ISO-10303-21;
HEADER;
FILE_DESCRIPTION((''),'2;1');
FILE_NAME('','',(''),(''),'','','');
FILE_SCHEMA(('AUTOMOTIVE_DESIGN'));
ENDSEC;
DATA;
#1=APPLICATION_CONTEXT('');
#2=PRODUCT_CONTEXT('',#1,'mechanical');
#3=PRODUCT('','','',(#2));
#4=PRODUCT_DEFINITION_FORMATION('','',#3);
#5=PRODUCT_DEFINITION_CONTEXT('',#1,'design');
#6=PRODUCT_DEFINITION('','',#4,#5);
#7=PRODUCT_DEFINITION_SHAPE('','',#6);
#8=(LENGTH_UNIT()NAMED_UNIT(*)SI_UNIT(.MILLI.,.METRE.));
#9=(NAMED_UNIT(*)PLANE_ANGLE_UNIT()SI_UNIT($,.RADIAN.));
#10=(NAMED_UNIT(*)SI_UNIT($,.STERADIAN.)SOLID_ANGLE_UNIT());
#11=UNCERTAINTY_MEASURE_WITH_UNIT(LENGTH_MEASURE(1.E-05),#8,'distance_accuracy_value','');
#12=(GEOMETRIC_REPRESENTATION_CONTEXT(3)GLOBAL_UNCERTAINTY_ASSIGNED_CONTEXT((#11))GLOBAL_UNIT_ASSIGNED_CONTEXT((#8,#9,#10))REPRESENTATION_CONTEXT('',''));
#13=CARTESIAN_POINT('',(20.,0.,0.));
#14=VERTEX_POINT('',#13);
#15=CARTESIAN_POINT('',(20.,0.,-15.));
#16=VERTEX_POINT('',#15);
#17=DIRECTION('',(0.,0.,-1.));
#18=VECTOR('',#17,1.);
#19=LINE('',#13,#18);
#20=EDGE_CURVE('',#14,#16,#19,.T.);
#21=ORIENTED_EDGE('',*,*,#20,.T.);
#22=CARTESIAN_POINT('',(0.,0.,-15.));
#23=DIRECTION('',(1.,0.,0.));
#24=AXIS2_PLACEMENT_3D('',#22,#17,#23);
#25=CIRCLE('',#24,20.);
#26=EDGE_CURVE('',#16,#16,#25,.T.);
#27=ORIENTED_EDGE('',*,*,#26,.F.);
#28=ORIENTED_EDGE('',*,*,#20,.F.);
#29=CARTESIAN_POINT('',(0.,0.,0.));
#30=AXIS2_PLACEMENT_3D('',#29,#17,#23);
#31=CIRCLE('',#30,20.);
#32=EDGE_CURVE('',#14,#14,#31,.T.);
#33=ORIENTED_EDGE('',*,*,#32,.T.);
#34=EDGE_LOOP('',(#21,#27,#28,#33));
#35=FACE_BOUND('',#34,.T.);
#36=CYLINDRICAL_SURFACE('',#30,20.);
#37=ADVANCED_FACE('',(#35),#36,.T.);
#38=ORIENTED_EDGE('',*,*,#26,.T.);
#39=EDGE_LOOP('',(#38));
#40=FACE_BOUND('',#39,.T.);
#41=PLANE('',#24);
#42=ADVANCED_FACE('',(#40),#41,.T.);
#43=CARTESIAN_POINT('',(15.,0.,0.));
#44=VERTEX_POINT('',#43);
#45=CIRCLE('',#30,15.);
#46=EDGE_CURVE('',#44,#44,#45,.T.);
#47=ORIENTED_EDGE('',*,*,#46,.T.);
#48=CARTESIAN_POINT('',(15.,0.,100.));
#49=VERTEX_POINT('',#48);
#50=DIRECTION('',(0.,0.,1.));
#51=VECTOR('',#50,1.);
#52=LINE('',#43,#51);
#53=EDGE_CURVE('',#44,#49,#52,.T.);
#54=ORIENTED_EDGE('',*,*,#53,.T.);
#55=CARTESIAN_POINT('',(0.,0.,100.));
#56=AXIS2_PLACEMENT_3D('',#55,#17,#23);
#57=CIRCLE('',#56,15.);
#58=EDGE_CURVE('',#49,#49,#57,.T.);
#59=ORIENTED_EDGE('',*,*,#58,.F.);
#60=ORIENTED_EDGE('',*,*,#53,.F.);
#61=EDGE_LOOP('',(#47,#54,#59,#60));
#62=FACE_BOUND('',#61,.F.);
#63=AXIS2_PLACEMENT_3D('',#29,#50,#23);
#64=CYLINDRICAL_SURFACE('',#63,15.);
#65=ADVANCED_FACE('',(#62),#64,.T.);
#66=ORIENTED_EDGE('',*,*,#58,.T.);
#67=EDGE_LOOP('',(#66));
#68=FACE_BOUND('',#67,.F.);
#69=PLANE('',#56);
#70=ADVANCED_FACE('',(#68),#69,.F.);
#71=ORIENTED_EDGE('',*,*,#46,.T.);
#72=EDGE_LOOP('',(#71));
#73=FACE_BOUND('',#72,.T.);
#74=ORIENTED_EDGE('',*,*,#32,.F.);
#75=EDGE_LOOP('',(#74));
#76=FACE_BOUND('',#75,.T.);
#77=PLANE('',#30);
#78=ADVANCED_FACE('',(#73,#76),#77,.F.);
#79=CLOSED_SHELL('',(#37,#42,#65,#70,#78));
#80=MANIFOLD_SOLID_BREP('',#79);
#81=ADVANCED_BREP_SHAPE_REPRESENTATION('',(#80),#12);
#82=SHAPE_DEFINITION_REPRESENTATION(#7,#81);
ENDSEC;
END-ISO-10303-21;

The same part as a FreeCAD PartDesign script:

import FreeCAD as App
import Part
import Sketcher

doc = App.newDocument("Part")
body = doc.addObject("PartDesign::Body", "Body")

sketch1 = doc.addObject("Sketcher::SketchObject", "Sketch")
body.addObject(sketch1)
sketch1.AttachmentSupport = (doc.XZ_Plane, [""])
sketch1.MapMode = "FlatFace"
sketch1.addGeometry(Part.LineSegment(App.Vector(0, -15, 0), App.Vector(0, 100, 0)), False)
sketch1.addGeometry(Part.LineSegment(App.Vector(0, 100, 0), App.Vector(15, 100, 0)), False)
sketch1.addGeometry(Part.LineSegment(App.Vector(15, 100, 0), App.Vector(15, 0, 0)), False)
sketch1.addGeometry(Part.LineSegment(App.Vector(15, 0, 0), App.Vector(20, 0, 0)), False)
sketch1.addGeometry(Part.LineSegment(App.Vector(20, 0, 0), App.Vector(20, -15, 0)), False)
sketch1.addGeometry(Part.LineSegment(App.Vector(20, -15, 0), App.Vector(0, -15, 0)), False)
sketch1.addConstraint(Sketcher.Constraint("Coincident", 0, 2, 1, 1))
sketch1.addConstraint(Sketcher.Constraint("Coincident", 1, 2, 2, 1))
sketch1.addConstraint(Sketcher.Constraint("Coincident", 2, 2, 3, 1))
sketch1.addConstraint(Sketcher.Constraint("Coincident", 3, 2, 4, 1))
sketch1.addConstraint(Sketcher.Constraint("Coincident", 4, 2, 5, 1))
sketch1.addConstraint(Sketcher.Constraint("Coincident", 5, 2, 0, 1))
sketch1.addConstraint(Sketcher.Constraint("Vertical", 0))
sketch1.addConstraint(Sketcher.Constraint("Horizontal", 1))
sketch1.addConstraint(Sketcher.Constraint("Vertical", 2))
sketch1.addConstraint(Sketcher.Constraint("Horizontal", 3))
sketch1.addConstraint(Sketcher.Constraint("Vertical", 4))
sketch1.addConstraint(Sketcher.Constraint("Horizontal", 5))
sketch1.addConstraint(Sketcher.Constraint("PointOnObject", 0, 2, -2))
sketch1.addConstraint(Sketcher.Constraint("PointOnObject", 2, 2, -1))
sketch1.addConstraint(Sketcher.Constraint("Equal", 1, 4))
sketch1.addConstraint(Sketcher.Constraint("DistanceX", 1, 1, 1, 2, 15.0))
sketch1.addConstraint(Sketcher.Constraint("DistanceX", 5, 2, 5, 1, 20.0))
sketch1.addConstraint(Sketcher.Constraint("DistanceY", 2, 2, 2, 1, 100.0))
revolution = doc.addObject("PartDesign::Revolution", "Revolution")
body.addObject(revolution)
revolution.Profile = sketch1
revolution.ReferenceAxis = (sketch1, ["V_Axis"])
revolution.Angle = 360

doc.recompute()
